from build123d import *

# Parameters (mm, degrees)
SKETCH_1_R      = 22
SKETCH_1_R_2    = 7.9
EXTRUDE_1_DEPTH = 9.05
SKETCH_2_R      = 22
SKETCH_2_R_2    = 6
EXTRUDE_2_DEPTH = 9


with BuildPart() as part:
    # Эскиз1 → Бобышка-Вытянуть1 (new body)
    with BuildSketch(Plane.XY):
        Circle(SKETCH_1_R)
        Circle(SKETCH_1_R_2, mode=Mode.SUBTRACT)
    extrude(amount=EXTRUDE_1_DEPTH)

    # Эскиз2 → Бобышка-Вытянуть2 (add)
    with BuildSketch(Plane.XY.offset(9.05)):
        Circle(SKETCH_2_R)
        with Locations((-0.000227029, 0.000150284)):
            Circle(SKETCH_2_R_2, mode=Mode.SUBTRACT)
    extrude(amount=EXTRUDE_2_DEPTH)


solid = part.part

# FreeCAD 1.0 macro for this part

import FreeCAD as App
import Part
import Sketcher

doc = App.newDocument("Part")
body = doc.addObject("PartDesign::Body", "Body")

sketch1 = body.newObject("Sketcher::SketchObject", "Sketch")
sketch1.AttachmentSupport = (doc.getObject("XY_Plane"), [""])
sketch1.MapMode = "FlatFace"
sketch1.addGeometry([
    Part.Circle(App.Vector(0, 0, 0), App.Vector(0, 0, 1), 22),
    Part.Circle(App.Vector(0, 0, 0), App.Vector(0, 0, 1), 8),
], False)
sketch1.addConstraint([
    Sketcher.Constraint("Coincident", 0, 3, -1, 1),
    Sketcher.Constraint("Coincident", 1, 3, -1, 1),
    Sketcher.Constraint("Diameter", 0, 44.0),
    Sketcher.Constraint("Diameter", 1, 15.8),
])
pad1 = body.newObject("PartDesign::Pad", "Pad")
pad1.Profile = sketch1
pad1.Length = 9.05

sketch2 = body.newObject("Sketcher::SketchObject", "Sketch001")
sketch2.AttachmentSupport = (doc.getObject("XY_Plane"), [""])
sketch2.MapMode = "FlatFace"
sketch2.AttachmentOffset = App.Placement(App.Vector(0, 0, 9.05), App.Rotation())
sketch2.addGeometry([
    Part.Circle(App.Vector(0, 0, 0), App.Vector(0, 0, 1), 22),
    Part.Circle(App.Vector(0, 0, 0), App.Vector(0, 0, 1), 6),
], False)
sketch2.addConstraint([
    Sketcher.Constraint("Coincident", 0, 3, -1, 1),
    Sketcher.Constraint("Diameter", 0, 44.0),
    Sketcher.Constraint("Diameter", 1, 12.0),
    Sketcher.Constraint("DistanceY", -1, 1, 1, 3, 0.00015),
    Sketcher.Constraint("DistanceX", 1, 3, -1, 1, 0.000227),
])
pad2 = body.newObject("PartDesign::Pad", "Pad001")
pad2.Profile = sketch2
pad2.Length = 9

doc.recompute()
